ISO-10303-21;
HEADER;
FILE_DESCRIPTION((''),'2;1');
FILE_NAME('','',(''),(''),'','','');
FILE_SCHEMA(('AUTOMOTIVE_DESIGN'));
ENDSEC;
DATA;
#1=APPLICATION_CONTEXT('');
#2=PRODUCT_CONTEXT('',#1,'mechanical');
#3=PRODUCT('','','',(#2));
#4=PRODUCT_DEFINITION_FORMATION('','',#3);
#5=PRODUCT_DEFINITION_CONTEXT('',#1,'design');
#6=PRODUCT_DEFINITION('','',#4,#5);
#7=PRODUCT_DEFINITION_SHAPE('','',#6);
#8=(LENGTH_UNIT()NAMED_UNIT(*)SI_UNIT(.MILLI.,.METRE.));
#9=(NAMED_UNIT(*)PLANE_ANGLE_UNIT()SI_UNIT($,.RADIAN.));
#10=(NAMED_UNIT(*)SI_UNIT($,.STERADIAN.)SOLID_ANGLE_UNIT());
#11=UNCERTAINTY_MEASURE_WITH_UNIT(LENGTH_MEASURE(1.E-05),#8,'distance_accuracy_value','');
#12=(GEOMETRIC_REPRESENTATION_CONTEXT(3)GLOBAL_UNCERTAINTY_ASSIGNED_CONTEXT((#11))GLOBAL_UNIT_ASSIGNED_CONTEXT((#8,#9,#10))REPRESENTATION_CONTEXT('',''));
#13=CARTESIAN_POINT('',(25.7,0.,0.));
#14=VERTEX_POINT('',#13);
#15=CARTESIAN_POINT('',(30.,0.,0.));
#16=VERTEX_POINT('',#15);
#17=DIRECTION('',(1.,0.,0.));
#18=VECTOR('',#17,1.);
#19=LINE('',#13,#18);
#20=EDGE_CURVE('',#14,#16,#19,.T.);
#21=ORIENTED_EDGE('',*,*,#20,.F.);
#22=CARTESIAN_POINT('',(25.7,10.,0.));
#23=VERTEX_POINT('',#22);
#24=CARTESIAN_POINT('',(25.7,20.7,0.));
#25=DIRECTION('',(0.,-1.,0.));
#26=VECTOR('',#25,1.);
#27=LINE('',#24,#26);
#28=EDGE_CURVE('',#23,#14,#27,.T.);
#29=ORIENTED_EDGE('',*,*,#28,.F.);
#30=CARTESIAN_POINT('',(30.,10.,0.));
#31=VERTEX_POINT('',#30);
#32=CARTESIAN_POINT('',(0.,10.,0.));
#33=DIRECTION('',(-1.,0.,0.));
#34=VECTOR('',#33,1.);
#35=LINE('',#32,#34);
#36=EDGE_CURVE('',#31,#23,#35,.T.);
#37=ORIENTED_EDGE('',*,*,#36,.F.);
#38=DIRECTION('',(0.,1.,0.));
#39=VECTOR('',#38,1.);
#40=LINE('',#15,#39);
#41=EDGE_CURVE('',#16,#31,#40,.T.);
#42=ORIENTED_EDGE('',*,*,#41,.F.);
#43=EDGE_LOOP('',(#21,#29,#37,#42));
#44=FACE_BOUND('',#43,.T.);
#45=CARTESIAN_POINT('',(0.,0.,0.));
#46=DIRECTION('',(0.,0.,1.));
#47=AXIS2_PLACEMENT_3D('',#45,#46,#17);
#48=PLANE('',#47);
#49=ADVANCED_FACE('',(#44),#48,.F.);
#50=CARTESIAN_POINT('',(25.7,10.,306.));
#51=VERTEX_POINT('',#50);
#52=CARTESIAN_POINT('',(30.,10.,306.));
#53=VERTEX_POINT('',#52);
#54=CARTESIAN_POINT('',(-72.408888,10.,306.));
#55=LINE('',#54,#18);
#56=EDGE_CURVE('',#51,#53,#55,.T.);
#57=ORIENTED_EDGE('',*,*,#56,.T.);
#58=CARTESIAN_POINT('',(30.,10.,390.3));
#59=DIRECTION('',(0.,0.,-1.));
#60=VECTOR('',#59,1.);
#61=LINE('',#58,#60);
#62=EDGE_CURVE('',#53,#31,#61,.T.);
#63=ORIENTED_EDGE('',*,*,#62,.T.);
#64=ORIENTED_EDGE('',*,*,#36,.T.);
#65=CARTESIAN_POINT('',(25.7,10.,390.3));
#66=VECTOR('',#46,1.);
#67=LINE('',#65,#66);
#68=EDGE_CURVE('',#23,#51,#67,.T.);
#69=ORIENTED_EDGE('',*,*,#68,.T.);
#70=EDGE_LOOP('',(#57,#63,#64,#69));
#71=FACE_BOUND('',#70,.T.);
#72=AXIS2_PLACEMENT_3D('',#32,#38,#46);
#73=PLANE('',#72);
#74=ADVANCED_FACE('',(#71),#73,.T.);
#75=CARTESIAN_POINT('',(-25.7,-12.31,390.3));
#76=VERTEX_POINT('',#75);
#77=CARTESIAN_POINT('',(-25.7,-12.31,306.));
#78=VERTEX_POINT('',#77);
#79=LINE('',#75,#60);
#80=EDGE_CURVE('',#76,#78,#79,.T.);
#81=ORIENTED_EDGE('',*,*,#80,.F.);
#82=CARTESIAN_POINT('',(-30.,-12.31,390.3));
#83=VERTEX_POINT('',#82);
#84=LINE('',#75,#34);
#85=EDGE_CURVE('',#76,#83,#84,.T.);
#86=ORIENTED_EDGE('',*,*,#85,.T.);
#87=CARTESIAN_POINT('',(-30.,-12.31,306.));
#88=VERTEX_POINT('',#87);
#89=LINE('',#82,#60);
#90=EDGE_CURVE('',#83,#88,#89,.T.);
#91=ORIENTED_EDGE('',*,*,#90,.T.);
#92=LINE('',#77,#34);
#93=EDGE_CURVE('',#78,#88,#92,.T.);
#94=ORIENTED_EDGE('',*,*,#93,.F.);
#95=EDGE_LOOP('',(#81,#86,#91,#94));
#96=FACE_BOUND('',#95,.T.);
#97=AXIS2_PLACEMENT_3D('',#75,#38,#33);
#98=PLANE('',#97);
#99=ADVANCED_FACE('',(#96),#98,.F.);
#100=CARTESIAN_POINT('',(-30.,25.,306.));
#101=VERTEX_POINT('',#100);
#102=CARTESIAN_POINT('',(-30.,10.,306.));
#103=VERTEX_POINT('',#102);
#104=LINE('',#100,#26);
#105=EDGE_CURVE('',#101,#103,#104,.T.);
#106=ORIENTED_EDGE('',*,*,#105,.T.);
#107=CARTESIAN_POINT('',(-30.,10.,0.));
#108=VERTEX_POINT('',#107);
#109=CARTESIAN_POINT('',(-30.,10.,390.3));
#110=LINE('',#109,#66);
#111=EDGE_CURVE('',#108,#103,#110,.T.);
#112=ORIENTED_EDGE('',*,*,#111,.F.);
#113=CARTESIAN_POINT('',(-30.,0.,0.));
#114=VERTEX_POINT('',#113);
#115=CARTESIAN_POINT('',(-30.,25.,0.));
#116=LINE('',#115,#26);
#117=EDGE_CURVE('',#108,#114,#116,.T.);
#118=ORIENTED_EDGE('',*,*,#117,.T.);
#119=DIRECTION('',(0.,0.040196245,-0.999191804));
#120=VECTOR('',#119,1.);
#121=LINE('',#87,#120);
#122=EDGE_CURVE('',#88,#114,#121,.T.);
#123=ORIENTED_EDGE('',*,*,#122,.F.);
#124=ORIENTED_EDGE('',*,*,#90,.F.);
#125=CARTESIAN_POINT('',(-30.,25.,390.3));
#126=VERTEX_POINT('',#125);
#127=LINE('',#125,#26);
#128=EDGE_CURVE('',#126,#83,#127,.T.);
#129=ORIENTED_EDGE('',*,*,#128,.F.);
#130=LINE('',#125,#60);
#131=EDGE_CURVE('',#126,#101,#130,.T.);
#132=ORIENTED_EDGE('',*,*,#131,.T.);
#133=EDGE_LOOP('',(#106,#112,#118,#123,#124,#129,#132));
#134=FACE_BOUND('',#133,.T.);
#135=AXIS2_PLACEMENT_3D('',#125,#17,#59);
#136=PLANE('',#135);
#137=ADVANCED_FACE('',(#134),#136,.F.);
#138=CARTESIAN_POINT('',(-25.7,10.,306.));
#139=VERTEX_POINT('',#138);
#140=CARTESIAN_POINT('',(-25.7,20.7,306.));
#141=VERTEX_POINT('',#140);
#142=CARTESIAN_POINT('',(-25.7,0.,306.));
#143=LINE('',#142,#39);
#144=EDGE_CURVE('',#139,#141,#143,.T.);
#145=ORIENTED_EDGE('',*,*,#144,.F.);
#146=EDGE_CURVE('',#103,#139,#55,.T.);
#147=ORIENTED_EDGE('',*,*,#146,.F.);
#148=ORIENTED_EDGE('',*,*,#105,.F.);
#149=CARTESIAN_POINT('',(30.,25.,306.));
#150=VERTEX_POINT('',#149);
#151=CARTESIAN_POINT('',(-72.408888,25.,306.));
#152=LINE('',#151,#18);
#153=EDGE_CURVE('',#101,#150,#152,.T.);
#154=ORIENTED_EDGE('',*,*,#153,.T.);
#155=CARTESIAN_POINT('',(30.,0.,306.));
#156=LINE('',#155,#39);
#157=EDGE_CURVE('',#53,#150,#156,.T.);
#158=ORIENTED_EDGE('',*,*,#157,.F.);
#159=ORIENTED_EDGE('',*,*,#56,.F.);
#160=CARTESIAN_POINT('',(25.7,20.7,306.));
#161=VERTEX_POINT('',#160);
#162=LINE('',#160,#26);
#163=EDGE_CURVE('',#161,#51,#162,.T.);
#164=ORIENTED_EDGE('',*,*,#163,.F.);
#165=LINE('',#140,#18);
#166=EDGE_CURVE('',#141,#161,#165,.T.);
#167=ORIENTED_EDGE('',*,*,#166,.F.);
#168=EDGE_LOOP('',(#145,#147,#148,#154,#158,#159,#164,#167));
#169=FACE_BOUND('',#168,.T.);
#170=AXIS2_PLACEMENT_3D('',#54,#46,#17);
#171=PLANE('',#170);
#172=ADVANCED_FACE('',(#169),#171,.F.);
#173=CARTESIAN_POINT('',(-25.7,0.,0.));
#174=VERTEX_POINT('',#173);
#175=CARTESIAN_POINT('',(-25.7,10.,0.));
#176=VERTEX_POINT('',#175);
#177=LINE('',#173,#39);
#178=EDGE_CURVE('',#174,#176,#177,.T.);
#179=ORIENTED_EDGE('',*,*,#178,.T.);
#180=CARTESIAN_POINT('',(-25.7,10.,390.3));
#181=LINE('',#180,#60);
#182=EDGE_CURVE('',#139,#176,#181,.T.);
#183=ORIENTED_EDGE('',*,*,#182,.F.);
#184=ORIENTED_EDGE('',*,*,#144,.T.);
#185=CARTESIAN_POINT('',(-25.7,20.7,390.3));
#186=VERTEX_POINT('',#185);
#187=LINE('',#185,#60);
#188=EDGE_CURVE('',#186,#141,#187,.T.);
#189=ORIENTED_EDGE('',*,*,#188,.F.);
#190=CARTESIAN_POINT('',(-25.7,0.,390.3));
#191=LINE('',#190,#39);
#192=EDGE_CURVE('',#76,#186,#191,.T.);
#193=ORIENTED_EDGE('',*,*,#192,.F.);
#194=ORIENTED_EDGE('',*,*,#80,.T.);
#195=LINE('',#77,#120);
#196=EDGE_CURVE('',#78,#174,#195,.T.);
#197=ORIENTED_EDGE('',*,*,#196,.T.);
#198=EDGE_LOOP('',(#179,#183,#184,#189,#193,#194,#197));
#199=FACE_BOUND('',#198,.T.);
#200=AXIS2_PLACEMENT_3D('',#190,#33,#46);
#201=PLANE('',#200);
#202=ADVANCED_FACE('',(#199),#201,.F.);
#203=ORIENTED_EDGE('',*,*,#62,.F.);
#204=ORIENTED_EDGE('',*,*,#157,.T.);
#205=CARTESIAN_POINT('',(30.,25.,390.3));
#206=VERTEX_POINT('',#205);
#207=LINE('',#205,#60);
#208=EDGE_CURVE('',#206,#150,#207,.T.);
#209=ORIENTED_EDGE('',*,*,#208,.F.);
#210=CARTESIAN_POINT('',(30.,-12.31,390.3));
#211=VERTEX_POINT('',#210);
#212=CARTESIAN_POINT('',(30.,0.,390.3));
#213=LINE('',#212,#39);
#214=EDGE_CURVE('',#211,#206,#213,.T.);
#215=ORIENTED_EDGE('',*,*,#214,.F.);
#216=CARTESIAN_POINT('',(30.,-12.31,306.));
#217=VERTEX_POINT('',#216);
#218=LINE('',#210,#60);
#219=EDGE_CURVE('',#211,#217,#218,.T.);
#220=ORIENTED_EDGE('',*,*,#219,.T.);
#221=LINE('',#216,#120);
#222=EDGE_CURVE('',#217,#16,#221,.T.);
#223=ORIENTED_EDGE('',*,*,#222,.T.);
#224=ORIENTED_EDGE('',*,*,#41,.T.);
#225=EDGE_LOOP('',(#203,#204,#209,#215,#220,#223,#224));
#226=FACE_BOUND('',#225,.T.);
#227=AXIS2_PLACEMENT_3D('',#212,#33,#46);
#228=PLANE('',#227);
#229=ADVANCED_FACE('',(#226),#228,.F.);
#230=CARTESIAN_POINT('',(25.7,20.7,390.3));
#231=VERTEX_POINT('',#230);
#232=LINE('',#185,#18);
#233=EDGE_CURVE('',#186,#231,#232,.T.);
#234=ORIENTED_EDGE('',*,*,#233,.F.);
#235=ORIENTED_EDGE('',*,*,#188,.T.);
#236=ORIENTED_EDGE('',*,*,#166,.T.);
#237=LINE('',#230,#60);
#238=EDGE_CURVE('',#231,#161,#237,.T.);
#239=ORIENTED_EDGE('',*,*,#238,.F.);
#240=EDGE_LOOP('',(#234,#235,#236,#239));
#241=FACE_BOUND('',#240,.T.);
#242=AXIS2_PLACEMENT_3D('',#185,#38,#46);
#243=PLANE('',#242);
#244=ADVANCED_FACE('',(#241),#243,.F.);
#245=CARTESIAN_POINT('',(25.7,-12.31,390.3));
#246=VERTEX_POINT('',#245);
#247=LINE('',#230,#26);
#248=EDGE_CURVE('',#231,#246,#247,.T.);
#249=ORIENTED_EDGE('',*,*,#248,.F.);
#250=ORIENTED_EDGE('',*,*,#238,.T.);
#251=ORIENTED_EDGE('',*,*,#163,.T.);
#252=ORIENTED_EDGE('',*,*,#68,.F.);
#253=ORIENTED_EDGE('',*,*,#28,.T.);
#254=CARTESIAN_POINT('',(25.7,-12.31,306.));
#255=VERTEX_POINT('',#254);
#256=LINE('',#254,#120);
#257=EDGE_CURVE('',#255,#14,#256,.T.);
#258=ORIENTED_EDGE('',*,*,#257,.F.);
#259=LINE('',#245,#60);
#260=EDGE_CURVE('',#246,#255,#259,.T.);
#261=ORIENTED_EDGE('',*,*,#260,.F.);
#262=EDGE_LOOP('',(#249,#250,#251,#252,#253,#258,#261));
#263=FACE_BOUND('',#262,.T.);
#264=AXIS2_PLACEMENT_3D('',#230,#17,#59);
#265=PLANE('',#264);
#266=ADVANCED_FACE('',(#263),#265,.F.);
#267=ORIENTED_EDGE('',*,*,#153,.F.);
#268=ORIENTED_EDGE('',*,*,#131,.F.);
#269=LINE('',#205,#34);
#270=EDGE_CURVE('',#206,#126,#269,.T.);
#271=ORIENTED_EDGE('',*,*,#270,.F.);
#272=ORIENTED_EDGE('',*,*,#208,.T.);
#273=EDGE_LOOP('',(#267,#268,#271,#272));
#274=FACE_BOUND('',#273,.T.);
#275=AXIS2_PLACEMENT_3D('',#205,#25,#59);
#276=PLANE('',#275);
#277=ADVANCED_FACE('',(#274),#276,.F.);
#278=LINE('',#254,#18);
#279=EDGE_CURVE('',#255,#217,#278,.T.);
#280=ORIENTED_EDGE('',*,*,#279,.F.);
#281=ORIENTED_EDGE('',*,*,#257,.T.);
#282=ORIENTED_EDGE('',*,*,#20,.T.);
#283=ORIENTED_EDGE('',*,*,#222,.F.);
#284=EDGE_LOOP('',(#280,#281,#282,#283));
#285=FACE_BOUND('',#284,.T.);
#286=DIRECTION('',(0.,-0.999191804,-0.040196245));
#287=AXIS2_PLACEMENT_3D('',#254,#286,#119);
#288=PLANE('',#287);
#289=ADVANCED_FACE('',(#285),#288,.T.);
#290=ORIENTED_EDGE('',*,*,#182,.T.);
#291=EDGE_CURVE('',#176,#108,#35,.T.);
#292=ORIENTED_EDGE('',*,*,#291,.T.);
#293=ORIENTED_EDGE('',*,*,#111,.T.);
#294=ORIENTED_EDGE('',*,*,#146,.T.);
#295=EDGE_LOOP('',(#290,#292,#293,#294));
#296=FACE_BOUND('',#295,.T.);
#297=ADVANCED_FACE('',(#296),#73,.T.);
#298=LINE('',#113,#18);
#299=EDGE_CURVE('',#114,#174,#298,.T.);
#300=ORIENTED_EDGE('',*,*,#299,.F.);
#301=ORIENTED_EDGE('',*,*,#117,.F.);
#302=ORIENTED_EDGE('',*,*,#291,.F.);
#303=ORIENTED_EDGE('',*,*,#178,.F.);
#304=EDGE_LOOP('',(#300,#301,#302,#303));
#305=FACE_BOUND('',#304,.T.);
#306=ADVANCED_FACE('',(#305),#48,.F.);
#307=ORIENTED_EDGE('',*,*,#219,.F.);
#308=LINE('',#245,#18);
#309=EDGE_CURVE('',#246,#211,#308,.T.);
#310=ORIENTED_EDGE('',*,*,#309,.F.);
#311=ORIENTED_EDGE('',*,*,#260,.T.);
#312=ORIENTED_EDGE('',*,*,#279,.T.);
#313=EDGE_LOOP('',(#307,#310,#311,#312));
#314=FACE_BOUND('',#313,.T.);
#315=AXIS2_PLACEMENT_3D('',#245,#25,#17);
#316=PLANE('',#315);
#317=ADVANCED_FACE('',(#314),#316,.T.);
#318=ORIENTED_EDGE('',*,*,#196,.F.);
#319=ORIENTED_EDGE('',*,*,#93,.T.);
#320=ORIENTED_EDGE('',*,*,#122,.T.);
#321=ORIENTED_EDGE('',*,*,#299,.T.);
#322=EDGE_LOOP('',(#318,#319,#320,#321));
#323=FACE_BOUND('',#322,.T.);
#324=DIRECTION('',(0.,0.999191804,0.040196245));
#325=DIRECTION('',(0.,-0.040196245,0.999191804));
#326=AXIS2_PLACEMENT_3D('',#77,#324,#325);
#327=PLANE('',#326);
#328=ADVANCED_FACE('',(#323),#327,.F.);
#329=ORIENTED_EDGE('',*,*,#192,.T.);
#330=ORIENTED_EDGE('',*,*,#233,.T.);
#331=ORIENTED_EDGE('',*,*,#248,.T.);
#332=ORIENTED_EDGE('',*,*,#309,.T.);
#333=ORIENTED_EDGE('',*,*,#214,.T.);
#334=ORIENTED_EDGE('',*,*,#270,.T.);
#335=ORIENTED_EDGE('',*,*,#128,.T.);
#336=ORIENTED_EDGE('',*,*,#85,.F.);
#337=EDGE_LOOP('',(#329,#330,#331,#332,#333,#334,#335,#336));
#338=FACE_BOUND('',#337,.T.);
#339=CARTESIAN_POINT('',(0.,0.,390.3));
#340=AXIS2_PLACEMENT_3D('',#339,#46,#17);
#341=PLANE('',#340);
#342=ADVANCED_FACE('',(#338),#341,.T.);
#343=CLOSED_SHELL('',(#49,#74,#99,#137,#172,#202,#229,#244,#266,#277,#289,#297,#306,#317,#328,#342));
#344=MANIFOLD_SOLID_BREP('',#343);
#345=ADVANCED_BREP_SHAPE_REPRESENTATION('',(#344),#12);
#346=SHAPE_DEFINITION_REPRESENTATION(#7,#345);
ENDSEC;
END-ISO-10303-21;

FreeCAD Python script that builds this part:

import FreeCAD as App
import Part
import Sketcher
from FreeCAD import Vector
Q = App.Units.Quantity

doc = App.newDocument("Part")
params = doc.addObject("Spreadsheet::Sheet", "Params")
for row, (alias, value) in enumerate([
    ("sketch1_width", "60 mm"),
    ("sketch1_height", "25 mm"),
    ("sketch1_width2", "4.3 mm"),
    ("sketch1_height2", "20.7 mm"),
    ("pad1_length", "390.3 mm"),
    ("sketch2_height", "390.3 mm"),
    ("sketch2_height2", "84.3 mm"),
    ("sketch2_width", "12.31 mm"),
    ("pad2_length", "4.3 mm"),
    ("sketch3_height", "70 mm"),
    ("sketch3_width", "8.6 mm"),
    ("pocket1_length", "10 mm"),
    ("pocket2_length", "15 mm"),
], start=1):
    params.set(f"A{row}", alias)
    params.set(f"B{row}", "=" + value)
    params.setAlias(f"B{row}", alias)

body = doc.addObject("PartDesign::Body", "Body")

# Sketch on XY plane
sketch1 = body.newObject("Sketcher::SketchObject", "Sketch")
sketch1.AttachmentSupport = (doc.getObject("XY_Plane"), [""])
sketch1.MapMode = "FlatFace"
sketch1.addGeometry([
    Part.LineSegment(Vector(-30, 0, 0), Vector(-25.7, 0, 0)),  # 0
    Part.LineSegment(Vector(-25.7, 0, 0), Vector(-25.7, 20.7, 0)),  # 1
    Part.LineSegment(Vector(-25.7, 20.7, 0), Vector(25.7, 20.7, 0)),  # 2
    Part.LineSegment(Vector(25.7, 20.7, 0), Vector(25.7, 0, 0)),  # 3
    Part.LineSegment(Vector(25.7, 0, 0), Vector(30, 0, 0)),  # 4
    Part.LineSegment(Vector(30, 0, 0), Vector(30, 25, 0)),  # 5
    Part.LineSegment(Vector(30, 25, 0), Vector(-30, 25, 0)),  # 6
    Part.LineSegment(Vector(-30, 25, 0), Vector(-30, 0, 0)),  # 7
], False)
sketch1.addConstraint([
    Sketcher.Constraint("Coincident", 0, 2, 1, 1),
    Sketcher.Constraint("Coincident", 1, 2, 2, 1),
    Sketcher.Constraint("Coincident", 2, 2, 3, 1),
    Sketcher.Constraint("Coincident", 3, 2, 4, 1),
    Sketcher.Constraint("Coincident", 4, 2, 5, 1),
    Sketcher.Constraint("Coincident", 5, 2, 6, 1),
    Sketcher.Constraint("Coincident", 6, 2, 7, 1),
    Sketcher.Constraint("Coincident", 7, 2, 0, 1),
    Sketcher.Constraint("Horizontal", 0),
    Sketcher.Constraint("Vertical", 1),
    Sketcher.Constraint("Horizontal", 2),
    Sketcher.Constraint("Vertical", 3),
    Sketcher.Constraint("Horizontal", 4),
    Sketcher.Constraint("Vertical", 5),
    Sketcher.Constraint("Horizontal", 6),
    Sketcher.Constraint("Vertical", 7),
    Sketcher.Constraint("Symmetric", 0, 2, 3, 2, -1, 1),
    Sketcher.Constraint("Symmetric", 4, 2, 7, 2, -2),
    Sketcher.Constraint("DistanceX", 6, 2, 6, 1, Q("60 mm")),
    Sketcher.Constraint("DistanceY", 5, 1, 5, 2, Q("25 mm")),
    Sketcher.Constraint("DistanceX", 0, 1, 0, 2, Q("4.3 mm")),
    Sketcher.Constraint("DistanceY", 1, 1, 1, 2, Q("20.7 mm")),
])
sketch1.setExpression("Constraints[18]", "Params.sketch1_width")
sketch1.setExpression("Constraints[19]", "Params.sketch1_height")
sketch1.setExpression("Constraints[20]", "Params.sketch1_width2")
sketch1.setExpression("Constraints[21]", "Params.sketch1_height2")
pad1 = body.newObject("PartDesign::Pad", "Pad")
pad1.Profile = sketch1
pad1.setExpression("Length", "Params.pad1_length")

# Sketch on YZ plane
sketch2 = body.newObject("Sketcher::SketchObject", "Sketch001")
sketch2.AttachmentSupport = (doc.getObject("YZ_Plane"), [""])
sketch2.MapMode = "FlatFace"
sketch2.AttachmentOffset = App.Placement(Vector(0, 0, 30), App.Rotation())
sketch2.addGeometry([
    Part.LineSegment(Vector(-12, 306, 0), Vector(0, 0, 0)),
    Part.LineSegment(Vector(0, 0, 0), Vector(0, 390, 0)),
    Part.LineSegment(Vector(0, 390, 0), Vector(-12, 390, 0)),
    Part.LineSegment(Vector(-12, 390, 0), Vector(-12, 306, 0)),
], False)
sketch2.addConstraint([
    Sketcher.Constraint("Coincident", 0, 2, 1, 1),
    Sketcher.Constraint("Coincident", 1, 2, 2, 1),
    Sketcher.Constraint("Coincident", 2, 2, 3, 1),
    Sketcher.Constraint("Coincident", 3, 2, 0, 1),
    Sketcher.Constraint("Vertical", 1),
    Sketcher.Constraint("Horizontal", 2),
    Sketcher.Constraint("Vertical", 3),
    Sketcher.Constraint("Coincident", 0, 2, -1, 1),
    Sketcher.Constraint("DistanceY", 1, 1, 1, 2, Q("390.3 mm")),
    Sketcher.Constraint("DistanceY", 3, 2, 3, 1, Q("84.3 mm")),
    Sketcher.Constraint("DistanceX", 2, 2, 2, 1, Q("12.31 mm")),
])
sketch2.setExpression("Constraints[8]", "Params.sketch2_height")
sketch2.setExpression("Constraints[9]", "Params.sketch2_height2")
sketch2.setExpression("Constraints[10]", "Params.sketch2_width")
pad2 = body.newObject("PartDesign::Pad", "Pad001")
pad2.Profile = sketch2
pad2.setExpression("Length", "Params.pad2_length")
pad2.Reversed = True
doc.recompute()

mirrored = body.newObject("PartDesign::Mirrored", "Mirrored")
mirrored.Originals = [pad2]
mirrored.MirrorPlane = (doc.getObject("YZ_Plane"), [""])
body.Tip = mirrored

# Sketch on XZ plane
sketch3 = body.newObject("Sketcher::SketchObject", "Sketch002")
sketch3.AttachmentSupport = (doc.getObject("XZ_Plane"), [""])
sketch3.MapMode = "FlatFace"
sketch3.AttachmentOffset = App.Placement(Vector(0, 0, -25), App.Rotation())
sketch3.addGeometry([
    Part.LineSegment(Vector(-4, 0, 0), Vector(-4, 70, 0)),
    Part.LineSegment(Vector(-4, 70, 0), Vector(4, 70, 0)),
    Part.LineSegment(Vector(4, 70, 0), Vector(4, 0, 0)),
    Part.LineSegment(Vector(4, 0, 0), Vector(-4, 0, 0)),
], False)
sketch3.addConstraint([
    Sketcher.Constraint("Coincident", 0, 2, 1, 1),
    Sketcher.Constraint("Coincident", 1, 2, 2, 1),
    Sketcher.Constraint("Coincident", 2, 2, 3, 1),
    Sketcher.Constraint("Coincident", 3, 2, 0, 1),
    Sketcher.Constraint("Vertical", 0),
    Sketcher.Constraint("Horizontal", 1),
    Sketcher.Constraint("Vertical", 2),
    Sketcher.Constraint("Horizontal", 3),
    Sketcher.Constraint("Symmetric", 2, 2, 3, 2, -1, 1),
    Sketcher.Constraint("DistanceY", 0, 1, 0, 2, Q("70 mm")),
    Sketcher.Constraint("DistanceX", 1, 1, 1, 2, Q("8.6 mm")),
])
sketch3.setExpression("Constraints[9]", "Params.sketch3_height")
sketch3.setExpression("Constraints[10]", "Params.sketch3_width")
pocket1 = body.newObject("PartDesign::Pocket", "Pocket")
pocket1.Profile = sketch3
pocket1.setExpression("Length", "Params.pocket1_length")
pocket1.Reversed = True

# Sketch on XZ plane
sketch4 = body.newObject("Sketcher::SketchObject", "Sketch003")
sketch4.AttachmentSupport = (doc.getObject("XZ_Plane"), [""])
sketch4.MapMode = "FlatFace"
sketch4.AttachmentOffset = App.Placement(Vector(0, 0, -25), App.Rotation())
sketch4.addGeometry([
    Part.LineSegment(Vector(-72, -43, 0), Vector(-72, 306, 0)),
    Part.LineSegment(Vector(-72, 306, 0), Vector(158, 306, 0)),
    Part.LineSegment(Vector(158, 306, 0), Vector(158, -43, 0)),
    Part.LineSegment(Vector(158, -43, 0), Vector(-72, -43, 0)),
], False)
sketch4.addConstraint([
    Sketcher.Constraint("Coincident", 0, 2, 1, 1),
    Sketcher.Constraint("Coincident", 1, 2, 2, 1),
    Sketcher.Constraint("Coincident", 2, 2, 3, 1),
    Sketcher.Constraint("Coincident", 3, 2, 0, 1),
    Sketcher.Constraint("Vertical", 0),
    Sketcher.Constraint("Horizontal", 1),
    Sketcher.Constraint("Vertical", 2),
    Sketcher.Constraint("Horizontal", 3),
    Sketcher.Constraint("DistanceY", -1, 1, 0, 2, Q("306 mm")),
    Sketcher.Constraint("DistanceX", 1, 1, 1, 2, Q("230.803227 mm")),
    Sketcher.Constraint("DistanceY", 0, 1, 0, 2, Q("349.257793 mm")),
    Sketcher.Constraint("DistanceX", -1, 1, 1, 2, Q("158.394339 mm")),
])
pocket2 = body.newObject("PartDesign::Pocket", "Pocket001")
pocket2.Profile = sketch4
pocket2.setExpression("Length", "Params.pocket2_length")
pocket2.Reversed = True

doc.recompute()
